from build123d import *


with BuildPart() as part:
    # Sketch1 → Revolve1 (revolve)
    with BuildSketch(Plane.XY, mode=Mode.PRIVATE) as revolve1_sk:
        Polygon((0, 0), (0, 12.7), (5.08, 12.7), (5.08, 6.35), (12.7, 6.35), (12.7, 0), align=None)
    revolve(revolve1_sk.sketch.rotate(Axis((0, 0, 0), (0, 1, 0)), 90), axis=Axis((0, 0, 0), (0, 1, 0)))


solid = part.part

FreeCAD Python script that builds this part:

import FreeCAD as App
import Part
import Sketcher

V = App.Vector
Q = App.Units.Quantity

doc = App.newDocument("Part")
params = doc.addObject("Spreadsheet::Sheet", "Params")
for row, (alias, value) in enumerate([
    ("sketch1_width", "0.5 in"),
    ("sketch1_width2", "0.3 in"),
    ("revolution_angle", "360 deg"),
], start=1):
    params.set(f"A{row}", alias)
    params.set(f"B{row}", "=" + value)
    params.setAlias(f"B{row}", alias)

body = doc.addObject("PartDesign::Body", "Body")

# Sketch on XY plane
sketch1 = body.newObject("Sketcher::SketchObject", "Sketch")
sketch1.AttachmentSupport = (doc.getObject("XY_Plane"), [""])
sketch1.MapMode = "FlatFace"
sketch1.addGeometry(Part.LineSegment(V(0, 12.7, 0), V(0, 0, 0)), False)
sketch1.addGeometry(Part.LineSegment(V(0, 0, 0), V(12.7, 0, 0)), False)
sketch1.addGeometry(Part.LineSegment(V(12.7, 0, 0), V(12.7, 6.35, 0)), False)
sketch1.addGeometry(Part.LineSegment(V(12.7, 6.35, 0), V(5.08, 6.35, 0)), False)
sketch1.addGeometry(Part.LineSegment(V(5.08, 6.35, 0), V(5.08, 12.7, 0)), False)
sketch1.addGeometry(Part.LineSegment(V(5.08, 12.7, 0), V(0, 12.7, 0)), False)
sketch1.addConstraint(Sketcher.Constraint("Coincident", 0, 2, 1, 1))
sketch1.addConstraint(Sketcher.Constraint("Coincident", 1, 2, 2, 1))
sketch1.addConstraint(Sketcher.Constraint("Coincident", 2, 2, 3, 1))
sketch1.addConstraint(Sketcher.Constraint("Coincident", 3, 2, 4, 1))
sketch1.addConstraint(Sketcher.Constraint("Coincident", 4, 2, 5, 1))
sketch1.addConstraint(Sketcher.Constraint("Coincident", 5, 2, 0, 1))
sketch1.addConstraint(Sketcher.Constraint("Vertical", 0))
sketch1.addConstraint(Sketcher.Constraint("Horizontal", 1))
sketch1.addConstraint(Sketcher.Constraint("Vertical", 2))
sketch1.addConstraint(Sketcher.Constraint("Horizontal", 3))
sketch1.addConstraint(Sketcher.Constraint("Vertical", 4))
sketch1.addConstraint(Sketcher.Constraint("Horizontal", 5))
sketch1.addConstraint(Sketcher.Constraint("Coincident", 0, 2, -1, 1))
sketch1.addConstraint(Sketcher.Constraint("Equal", 1, 0))
sketch1.addConstraint(Sketcher.Constraint("Equal", 2, 4))
sketch1.addConstraint(Sketcher.Constraint("DistanceX", 1, 1, 1, 2, Q("0.5 in")))
sketch1.addConstraint(Sketcher.Constraint("DistanceX", 3, 2, 3, 1, Q("0.3 in")))
sketch1.setExpression("Constraints[15]", "Params.sketch1_width")
sketch1.setExpression("Constraints[16]", "Params.sketch1_width2")
revolution = body.newObject("PartDesign::Revolution", "Revolution")
revolution.Profile = sketch1
revolution.ReferenceAxis = (sketch1, ["V_Axis"])
revolution.setExpression("Angle", "Params.revolution_angle")

doc.recompute()
